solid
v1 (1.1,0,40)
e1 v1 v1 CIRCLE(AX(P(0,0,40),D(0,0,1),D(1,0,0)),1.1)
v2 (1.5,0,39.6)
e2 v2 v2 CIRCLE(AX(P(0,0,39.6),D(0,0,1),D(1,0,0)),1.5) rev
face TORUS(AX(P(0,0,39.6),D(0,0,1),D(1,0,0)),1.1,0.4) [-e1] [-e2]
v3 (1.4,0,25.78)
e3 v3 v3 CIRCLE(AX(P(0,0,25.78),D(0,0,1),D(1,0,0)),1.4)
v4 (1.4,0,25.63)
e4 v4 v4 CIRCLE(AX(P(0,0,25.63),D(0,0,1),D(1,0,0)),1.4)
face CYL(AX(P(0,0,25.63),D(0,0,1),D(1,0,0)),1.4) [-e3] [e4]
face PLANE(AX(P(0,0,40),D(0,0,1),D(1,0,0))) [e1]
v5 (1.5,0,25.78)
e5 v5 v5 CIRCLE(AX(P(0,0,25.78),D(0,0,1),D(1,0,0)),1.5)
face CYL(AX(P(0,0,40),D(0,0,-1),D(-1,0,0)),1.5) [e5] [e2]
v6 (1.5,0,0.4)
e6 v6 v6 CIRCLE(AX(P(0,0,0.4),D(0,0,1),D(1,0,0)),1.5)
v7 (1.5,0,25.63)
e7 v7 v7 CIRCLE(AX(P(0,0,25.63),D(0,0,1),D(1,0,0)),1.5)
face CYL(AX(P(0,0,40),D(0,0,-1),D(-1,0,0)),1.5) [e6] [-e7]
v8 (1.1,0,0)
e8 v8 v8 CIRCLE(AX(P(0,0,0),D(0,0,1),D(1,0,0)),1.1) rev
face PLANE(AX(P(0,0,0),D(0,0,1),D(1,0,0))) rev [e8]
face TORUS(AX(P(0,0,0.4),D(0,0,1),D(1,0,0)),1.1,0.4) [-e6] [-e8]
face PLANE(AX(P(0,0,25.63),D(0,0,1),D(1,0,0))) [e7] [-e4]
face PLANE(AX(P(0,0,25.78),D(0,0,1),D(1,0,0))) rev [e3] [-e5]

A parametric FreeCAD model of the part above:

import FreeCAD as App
import Part
import Sketcher
from FreeCAD import Vector


def edges_at(feature, points):
    """Names of the edges that pass closest to the given points."""
    edges = feature.Shape.Edges
    near = lambda p: min(range(len(edges)), key=lambda i: edges[i].distToShape(Part.Vertex(*p))[0])
    return sorted({f"Edge{near(p) + 1}" for p in points})

doc = App.newDocument("Part")
body = doc.addObject("PartDesign::Body", "Body")

# Sketch on XY plane
sketch1 = doc.addObject("Sketcher::SketchObject", "Sketch")
body.addObject(sketch1)
sketch1.AttachmentSupport = (doc.XY_Plane, [""])
sketch1.MapMode = "FlatFace"
sketch1.addGeometry(Part.Circle(Vector(0, 0, 0), Vector(0, 0, 1), 1.5), False)
sketch1.addConstraint([
    Sketcher.Constraint("Coincident", 0, 3, -1, 1),
    Sketcher.Constraint("Diameter", 0, 3.0),
])
pad1 = doc.addObject("PartDesign::Pad", "Pad")
body.addObject(pad1)
pad1.Profile = sketch1
pad1.Length = 40
doc.recompute()

fillet = doc.addObject("PartDesign::Fillet", "Fillet")
body.addObject(fillet)
fillet.Base = (pad1, edges_at(pad1, [(-1.5, 0, 0), (-1.5, 0, 40)]))
fillet.Radius = 0.4

# Sketch on XY plane
sketch2 = doc.addObject("Sketcher::SketchObject", "Sketch001")
body.addObject(sketch2)
sketch2.AttachmentSupport = (doc.XY_Plane, [""])
sketch2.MapMode = "FlatFace"
sketch2.AttachmentOffset = App.Placement(Vector(0, 0, 25.78), App.Rotation())
sketch2.addGeometry([
    Part.Circle(Vector(0, 0, 0), Vector(0, 0, 1), 3),
    Part.Circle(Vector(0, 0, 0), Vector(0, 0, 1), 1.4),
], False)
sketch2.addConstraint([
    Sketcher.Constraint("Coincident", 0, 3, -1, 1),
    Sketcher.Constraint("Coincident", 1, 3, -1, 1),
    Sketcher.Constraint("Diameter", 1, 2.8),
    Sketcher.Constraint("Diameter", 0, 5.945312),
])
pocket1 = doc.addObject("PartDesign::Pocket", "Pocket")
body.addObject(pocket1)
pocket1.Profile = sketch2
pocket1.Length = 0.15

doc.recompute()
